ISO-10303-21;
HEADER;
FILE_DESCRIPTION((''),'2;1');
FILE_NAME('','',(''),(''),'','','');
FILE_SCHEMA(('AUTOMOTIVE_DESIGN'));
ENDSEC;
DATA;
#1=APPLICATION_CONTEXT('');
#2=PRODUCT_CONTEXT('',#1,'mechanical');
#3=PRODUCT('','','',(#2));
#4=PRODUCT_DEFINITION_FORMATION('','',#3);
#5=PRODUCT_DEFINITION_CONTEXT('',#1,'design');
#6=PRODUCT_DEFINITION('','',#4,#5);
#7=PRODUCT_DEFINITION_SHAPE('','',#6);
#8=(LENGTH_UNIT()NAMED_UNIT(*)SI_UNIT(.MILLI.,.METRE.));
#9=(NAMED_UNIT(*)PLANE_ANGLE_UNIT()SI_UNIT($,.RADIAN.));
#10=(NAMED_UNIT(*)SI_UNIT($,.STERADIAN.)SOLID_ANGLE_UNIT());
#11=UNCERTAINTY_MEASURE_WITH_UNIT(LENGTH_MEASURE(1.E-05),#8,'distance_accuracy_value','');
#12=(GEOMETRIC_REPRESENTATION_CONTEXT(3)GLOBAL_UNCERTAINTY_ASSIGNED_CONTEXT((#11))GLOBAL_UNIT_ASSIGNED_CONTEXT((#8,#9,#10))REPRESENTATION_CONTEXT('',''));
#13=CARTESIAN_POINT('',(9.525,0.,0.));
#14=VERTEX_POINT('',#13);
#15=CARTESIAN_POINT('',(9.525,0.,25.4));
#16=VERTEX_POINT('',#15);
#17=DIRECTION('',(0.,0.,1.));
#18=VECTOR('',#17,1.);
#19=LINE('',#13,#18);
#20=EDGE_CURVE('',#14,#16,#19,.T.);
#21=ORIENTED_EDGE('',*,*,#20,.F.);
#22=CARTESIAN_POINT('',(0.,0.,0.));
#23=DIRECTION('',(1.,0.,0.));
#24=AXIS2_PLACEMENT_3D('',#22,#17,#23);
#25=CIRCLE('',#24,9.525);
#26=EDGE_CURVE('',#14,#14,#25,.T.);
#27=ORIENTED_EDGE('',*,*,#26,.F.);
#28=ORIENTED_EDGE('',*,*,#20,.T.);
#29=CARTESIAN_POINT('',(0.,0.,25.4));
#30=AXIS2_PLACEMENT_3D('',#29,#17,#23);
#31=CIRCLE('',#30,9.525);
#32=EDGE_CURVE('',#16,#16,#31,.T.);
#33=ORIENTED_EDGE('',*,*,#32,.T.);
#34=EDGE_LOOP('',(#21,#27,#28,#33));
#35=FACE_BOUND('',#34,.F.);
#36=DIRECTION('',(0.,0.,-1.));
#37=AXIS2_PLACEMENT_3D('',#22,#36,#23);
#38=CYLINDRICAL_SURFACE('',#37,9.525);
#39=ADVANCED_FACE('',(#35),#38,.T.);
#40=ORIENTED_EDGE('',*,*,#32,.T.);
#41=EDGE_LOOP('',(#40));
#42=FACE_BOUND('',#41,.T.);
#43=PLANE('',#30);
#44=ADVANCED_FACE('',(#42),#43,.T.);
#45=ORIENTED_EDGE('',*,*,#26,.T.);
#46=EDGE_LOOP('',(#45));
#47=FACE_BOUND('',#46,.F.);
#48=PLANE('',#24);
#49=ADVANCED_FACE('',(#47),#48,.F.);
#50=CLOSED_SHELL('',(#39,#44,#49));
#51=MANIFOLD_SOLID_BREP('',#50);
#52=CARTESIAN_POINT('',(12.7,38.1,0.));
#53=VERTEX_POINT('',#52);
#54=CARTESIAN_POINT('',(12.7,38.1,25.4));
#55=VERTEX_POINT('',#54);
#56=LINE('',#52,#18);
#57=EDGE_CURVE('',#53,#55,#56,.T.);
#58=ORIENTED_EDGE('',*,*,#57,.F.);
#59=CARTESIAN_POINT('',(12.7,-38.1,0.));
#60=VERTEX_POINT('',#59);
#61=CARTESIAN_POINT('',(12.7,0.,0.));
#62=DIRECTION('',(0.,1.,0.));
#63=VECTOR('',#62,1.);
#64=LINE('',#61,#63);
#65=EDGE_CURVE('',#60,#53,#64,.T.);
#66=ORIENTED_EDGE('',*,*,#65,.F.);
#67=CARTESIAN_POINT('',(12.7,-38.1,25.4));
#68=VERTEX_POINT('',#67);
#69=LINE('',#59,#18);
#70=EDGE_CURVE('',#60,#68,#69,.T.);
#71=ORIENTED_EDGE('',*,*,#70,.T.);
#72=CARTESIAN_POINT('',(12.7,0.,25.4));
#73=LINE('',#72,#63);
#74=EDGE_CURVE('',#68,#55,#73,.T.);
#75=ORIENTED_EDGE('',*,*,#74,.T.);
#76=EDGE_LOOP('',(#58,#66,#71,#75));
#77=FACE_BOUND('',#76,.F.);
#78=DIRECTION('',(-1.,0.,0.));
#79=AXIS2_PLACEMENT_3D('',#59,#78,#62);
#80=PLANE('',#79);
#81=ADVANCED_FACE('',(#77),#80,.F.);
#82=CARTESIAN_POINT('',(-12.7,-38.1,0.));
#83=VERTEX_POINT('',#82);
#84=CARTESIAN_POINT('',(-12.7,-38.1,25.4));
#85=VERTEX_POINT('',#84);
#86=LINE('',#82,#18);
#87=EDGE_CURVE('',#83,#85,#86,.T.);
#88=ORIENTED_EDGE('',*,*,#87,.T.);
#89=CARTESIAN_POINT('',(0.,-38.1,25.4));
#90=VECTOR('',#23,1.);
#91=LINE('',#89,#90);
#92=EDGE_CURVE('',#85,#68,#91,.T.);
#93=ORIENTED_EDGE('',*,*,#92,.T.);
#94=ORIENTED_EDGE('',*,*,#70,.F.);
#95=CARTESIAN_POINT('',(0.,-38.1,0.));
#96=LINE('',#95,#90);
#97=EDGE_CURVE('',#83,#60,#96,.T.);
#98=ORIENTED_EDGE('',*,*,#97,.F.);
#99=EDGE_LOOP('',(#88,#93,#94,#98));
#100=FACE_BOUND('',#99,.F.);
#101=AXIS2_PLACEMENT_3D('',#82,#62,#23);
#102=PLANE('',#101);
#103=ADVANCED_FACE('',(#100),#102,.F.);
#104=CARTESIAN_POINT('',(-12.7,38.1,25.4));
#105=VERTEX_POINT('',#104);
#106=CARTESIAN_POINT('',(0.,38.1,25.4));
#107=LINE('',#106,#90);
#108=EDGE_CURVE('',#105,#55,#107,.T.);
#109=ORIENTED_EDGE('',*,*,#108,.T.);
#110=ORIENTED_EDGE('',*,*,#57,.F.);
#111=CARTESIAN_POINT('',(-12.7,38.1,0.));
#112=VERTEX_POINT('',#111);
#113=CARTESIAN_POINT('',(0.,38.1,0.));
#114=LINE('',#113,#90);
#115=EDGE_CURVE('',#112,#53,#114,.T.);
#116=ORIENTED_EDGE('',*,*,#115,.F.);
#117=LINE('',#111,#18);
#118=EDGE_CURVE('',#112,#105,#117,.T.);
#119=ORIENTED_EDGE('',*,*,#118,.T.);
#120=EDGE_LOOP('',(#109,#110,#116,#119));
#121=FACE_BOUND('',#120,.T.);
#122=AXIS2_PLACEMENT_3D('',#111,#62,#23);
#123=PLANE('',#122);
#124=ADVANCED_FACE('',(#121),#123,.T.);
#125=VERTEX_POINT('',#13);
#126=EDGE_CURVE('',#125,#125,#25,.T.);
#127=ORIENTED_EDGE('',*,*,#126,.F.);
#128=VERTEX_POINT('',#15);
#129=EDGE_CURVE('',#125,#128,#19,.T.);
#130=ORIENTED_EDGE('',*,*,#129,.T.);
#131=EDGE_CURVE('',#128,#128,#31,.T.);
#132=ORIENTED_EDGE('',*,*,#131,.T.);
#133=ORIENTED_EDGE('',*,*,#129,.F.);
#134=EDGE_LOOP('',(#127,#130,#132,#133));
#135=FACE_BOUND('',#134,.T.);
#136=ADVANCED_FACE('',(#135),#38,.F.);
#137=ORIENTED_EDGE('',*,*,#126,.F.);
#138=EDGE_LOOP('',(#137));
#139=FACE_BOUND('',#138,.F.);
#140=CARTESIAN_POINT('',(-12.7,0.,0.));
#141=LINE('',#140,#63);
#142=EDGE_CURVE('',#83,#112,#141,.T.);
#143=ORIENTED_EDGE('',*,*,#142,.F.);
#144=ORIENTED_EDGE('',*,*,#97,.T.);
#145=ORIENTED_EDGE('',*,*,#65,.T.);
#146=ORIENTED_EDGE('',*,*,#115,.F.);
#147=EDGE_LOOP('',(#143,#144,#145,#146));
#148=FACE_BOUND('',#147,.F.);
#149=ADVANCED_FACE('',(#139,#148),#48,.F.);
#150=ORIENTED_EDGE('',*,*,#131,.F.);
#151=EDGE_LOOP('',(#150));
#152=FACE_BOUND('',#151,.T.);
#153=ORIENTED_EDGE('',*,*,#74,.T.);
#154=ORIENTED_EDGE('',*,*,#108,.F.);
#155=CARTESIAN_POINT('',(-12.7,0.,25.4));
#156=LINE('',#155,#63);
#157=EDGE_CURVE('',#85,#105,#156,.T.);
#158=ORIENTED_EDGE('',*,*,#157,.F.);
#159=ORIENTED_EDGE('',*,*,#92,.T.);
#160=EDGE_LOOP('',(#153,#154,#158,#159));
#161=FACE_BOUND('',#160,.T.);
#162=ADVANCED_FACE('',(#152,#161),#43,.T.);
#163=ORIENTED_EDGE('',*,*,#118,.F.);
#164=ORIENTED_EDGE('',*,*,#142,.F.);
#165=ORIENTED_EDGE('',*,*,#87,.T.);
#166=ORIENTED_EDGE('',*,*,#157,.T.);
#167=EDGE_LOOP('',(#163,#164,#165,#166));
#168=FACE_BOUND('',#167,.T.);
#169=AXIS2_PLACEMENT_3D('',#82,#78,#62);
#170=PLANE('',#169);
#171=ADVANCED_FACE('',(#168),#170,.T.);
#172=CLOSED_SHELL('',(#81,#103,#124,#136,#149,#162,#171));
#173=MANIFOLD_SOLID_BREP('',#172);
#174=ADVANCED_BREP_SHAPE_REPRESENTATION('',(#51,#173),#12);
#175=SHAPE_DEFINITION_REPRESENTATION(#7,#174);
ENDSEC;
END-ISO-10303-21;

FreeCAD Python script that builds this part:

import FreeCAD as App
import Part
import Sketcher
Q = App.Units.Quantity


def add_polygon(sketch, points):
    """Adds a closed chain of lines whose ends are joined by coincident constraints."""
    first, n = sketch.GeometryCount, len(points)
    for a, b in zip(points, points[1:] + points[:1]):
        sketch.addGeometry(Part.LineSegment(App.Vector(*a, 0), App.Vector(*b, 0)), False)
    for i in range(n):
        sketch.addConstraint(Sketcher.Constraint("Coincident", first + i, 2, first + (i + 1) % n, 1))

doc = App.newDocument("Part")
body = doc.addObject("PartDesign::Body", "Body")

# Sketch on XY plane
sketch1 = body.newObject("Sketcher::SketchObject", "Sketch")
sketch1.AttachmentSupport = (doc.getObject("XY_Plane"), [""])
sketch1.MapMode = "FlatFace"
add_polygon(sketch1, [(-13, 38), (-13, -38), (13, -38), (13, 38)])  # lines 0-3
sketch1.addGeometry(Part.Circle(App.Vector(0, 0, 0), App.Vector(0, 0, 1), 10), False)  # 4
sketch1.addConstraint([
    Sketcher.Constraint("Vertical", 0),
    Sketcher.Constraint("Horizontal", 1),
    Sketcher.Constraint("Vertical", 2),
    Sketcher.Constraint("Horizontal", 3),
    Sketcher.Constraint("Coincident", 4, 3, -1, 1),
    Sketcher.Constraint("Symmetric", 0, 2, 2, 2, -1, 1),
    Sketcher.Constraint("Diameter", 4, Q("0.75 in")),
    Sketcher.Constraint("DistanceX", 1, 1, 1, 2, Q("1 in")),
    Sketcher.Constraint("DistanceY", 0, 2, 0, 1, Q("3 in")),
])
pad1 = body.newObject("PartDesign::Pad", "Pad")
pad1.Profile = sketch1
pad1.Length = Q("1 in")
body2 = doc.addObject("PartDesign::Body", "Body001")

# Sketch on XY plane
sketch2 = body2.newObject("Sketcher::SketchObject", "Sketch001")
sketch2.AttachmentSupport = (doc.getObject("XY_Plane001"), [""])
sketch2.MapMode = "FlatFace"
sketch2.addGeometry(Part.Circle(App.Vector(0, 0, 0), App.Vector(0, 0, 1), 10), False)
sketch2.addConstraint([
    Sketcher.Constraint("Coincident", 0, 3, -1, 1),
    Sketcher.Constraint("Diameter", 0, Q("0.75 in")),
])
pad2 = body2.newObject("PartDesign::Pad", "Pad001")
pad2.Profile = sketch2
pad2.Length = Q("1 in")

doc.recompute()
